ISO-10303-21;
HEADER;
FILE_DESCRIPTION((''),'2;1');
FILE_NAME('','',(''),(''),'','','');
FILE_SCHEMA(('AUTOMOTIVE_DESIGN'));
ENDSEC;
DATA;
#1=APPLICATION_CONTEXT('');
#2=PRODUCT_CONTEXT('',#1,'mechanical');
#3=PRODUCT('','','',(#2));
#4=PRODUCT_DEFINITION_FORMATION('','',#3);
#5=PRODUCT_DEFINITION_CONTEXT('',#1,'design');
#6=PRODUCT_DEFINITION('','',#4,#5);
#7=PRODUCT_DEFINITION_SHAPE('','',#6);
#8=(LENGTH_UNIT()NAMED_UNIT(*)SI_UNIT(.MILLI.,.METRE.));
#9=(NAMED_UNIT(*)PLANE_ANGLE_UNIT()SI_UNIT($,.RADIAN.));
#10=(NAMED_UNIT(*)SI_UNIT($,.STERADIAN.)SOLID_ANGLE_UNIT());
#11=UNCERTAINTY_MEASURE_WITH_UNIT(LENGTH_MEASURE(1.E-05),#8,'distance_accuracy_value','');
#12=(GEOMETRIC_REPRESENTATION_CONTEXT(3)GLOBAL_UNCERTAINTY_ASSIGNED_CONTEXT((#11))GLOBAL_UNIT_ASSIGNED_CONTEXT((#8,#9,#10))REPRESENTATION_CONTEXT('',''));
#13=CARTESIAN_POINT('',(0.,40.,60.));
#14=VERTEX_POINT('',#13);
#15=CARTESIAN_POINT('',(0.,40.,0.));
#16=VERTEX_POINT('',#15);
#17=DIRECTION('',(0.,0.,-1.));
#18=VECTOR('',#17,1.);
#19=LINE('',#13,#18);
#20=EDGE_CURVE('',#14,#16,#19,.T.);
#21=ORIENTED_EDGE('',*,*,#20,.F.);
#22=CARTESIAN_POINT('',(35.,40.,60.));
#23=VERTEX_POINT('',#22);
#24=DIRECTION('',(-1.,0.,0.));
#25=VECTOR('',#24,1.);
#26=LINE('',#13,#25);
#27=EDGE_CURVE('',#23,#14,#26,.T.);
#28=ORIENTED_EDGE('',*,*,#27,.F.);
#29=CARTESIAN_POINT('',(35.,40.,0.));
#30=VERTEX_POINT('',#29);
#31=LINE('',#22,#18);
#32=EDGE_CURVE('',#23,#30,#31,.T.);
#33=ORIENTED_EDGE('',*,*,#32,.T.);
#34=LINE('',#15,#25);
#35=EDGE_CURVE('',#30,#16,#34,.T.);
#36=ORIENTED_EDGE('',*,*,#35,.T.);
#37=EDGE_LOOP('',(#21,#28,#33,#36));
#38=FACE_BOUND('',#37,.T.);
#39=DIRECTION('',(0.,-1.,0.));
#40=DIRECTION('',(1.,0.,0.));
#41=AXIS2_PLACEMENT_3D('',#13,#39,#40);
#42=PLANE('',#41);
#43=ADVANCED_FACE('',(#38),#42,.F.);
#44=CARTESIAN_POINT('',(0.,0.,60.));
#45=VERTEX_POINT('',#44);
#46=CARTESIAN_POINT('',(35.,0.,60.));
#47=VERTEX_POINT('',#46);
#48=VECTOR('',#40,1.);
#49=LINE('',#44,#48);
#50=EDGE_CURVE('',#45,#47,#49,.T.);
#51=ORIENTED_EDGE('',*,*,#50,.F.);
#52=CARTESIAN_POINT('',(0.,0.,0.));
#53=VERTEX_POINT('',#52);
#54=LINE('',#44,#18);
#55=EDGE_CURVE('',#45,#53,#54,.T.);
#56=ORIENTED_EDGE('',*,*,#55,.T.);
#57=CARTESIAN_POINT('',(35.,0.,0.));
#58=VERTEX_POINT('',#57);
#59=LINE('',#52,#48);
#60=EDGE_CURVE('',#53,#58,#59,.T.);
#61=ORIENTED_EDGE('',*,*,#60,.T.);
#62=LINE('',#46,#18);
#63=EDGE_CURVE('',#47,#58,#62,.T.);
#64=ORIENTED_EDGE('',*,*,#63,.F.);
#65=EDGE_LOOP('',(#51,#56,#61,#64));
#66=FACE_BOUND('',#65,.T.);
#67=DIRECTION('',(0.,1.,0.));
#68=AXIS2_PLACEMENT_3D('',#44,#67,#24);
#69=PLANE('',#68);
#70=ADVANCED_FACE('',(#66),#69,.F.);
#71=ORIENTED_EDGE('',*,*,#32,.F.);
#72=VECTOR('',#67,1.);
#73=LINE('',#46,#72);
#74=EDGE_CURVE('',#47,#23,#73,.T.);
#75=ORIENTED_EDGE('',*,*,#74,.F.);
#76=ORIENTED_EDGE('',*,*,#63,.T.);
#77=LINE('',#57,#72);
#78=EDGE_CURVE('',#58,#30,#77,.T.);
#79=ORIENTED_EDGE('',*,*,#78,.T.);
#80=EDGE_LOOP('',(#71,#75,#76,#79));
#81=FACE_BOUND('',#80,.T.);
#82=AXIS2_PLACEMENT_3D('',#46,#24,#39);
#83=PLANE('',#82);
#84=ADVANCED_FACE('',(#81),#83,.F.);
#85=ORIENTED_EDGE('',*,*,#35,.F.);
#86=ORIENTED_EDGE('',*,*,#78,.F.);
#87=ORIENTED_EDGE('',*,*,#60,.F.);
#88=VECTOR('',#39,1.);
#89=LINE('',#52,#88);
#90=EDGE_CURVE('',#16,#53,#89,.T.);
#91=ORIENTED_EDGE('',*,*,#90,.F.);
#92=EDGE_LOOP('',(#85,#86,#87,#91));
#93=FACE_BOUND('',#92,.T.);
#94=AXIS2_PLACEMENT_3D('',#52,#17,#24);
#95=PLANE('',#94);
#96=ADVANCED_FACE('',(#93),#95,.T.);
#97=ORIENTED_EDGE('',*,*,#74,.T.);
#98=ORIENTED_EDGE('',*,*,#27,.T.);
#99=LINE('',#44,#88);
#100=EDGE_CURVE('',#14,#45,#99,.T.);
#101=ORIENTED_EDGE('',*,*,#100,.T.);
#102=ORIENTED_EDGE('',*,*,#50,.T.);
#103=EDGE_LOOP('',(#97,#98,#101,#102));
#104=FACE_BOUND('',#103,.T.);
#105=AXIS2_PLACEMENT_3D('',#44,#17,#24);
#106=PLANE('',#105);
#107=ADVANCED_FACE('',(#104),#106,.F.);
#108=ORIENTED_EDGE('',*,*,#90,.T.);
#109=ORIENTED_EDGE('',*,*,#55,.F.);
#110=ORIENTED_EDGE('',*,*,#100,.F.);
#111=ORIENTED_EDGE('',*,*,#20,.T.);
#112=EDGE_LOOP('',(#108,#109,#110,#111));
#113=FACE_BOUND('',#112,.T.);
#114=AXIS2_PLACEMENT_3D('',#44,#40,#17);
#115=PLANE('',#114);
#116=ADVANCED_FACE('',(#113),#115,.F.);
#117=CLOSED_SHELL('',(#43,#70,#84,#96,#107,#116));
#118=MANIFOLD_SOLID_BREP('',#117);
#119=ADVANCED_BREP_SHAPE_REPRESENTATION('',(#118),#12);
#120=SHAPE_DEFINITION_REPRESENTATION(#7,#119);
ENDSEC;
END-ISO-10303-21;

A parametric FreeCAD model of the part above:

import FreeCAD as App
import Part
import Sketcher


def add_polygon(sketch, points):
    """Adds a closed chain of lines whose ends are joined by coincident constraints."""
    first, n = sketch.GeometryCount, len(points)
    for a, b in zip(points, points[1:] + points[:1]):
        sketch.addGeometry(Part.LineSegment(App.Vector(*a, 0), App.Vector(*b, 0)), False)
    for i in range(n):
        sketch.addConstraint(Sketcher.Constraint("Coincident", first + i, 2, first + (i + 1) % n, 1))

doc = App.newDocument("Part")
body = doc.addObject("PartDesign::Body", "Body")

sketch1 = body.newObject("Sketcher::SketchObject", "Sketch")
sketch1.AttachmentSupport = (doc.getObject("XY_Plane"), [""])
sketch1.MapMode = "FlatFace"
add_polygon(sketch1, [(0, 40), (0, 0), (35, 0), (35, 40)])
sketch1.addConstraint([
    Sketcher.Constraint("Vertical", 0),
    Sketcher.Constraint("Horizontal", 1),
    Sketcher.Constraint("Vertical", 2),
    Sketcher.Constraint("Horizontal", 3),
    Sketcher.Constraint("Coincident", 0, 2, -1, 1),
    Sketcher.Constraint("DistanceX", 1, 1, 1, 2, 35.0),
    Sketcher.Constraint("DistanceY", 0, 2, 0, 1, 40.0),
])
pad1 = body.newObject("PartDesign::Pad", "Pad")
pad1.Profile = sketch1
pad1.Length = 60

doc.recompute()
